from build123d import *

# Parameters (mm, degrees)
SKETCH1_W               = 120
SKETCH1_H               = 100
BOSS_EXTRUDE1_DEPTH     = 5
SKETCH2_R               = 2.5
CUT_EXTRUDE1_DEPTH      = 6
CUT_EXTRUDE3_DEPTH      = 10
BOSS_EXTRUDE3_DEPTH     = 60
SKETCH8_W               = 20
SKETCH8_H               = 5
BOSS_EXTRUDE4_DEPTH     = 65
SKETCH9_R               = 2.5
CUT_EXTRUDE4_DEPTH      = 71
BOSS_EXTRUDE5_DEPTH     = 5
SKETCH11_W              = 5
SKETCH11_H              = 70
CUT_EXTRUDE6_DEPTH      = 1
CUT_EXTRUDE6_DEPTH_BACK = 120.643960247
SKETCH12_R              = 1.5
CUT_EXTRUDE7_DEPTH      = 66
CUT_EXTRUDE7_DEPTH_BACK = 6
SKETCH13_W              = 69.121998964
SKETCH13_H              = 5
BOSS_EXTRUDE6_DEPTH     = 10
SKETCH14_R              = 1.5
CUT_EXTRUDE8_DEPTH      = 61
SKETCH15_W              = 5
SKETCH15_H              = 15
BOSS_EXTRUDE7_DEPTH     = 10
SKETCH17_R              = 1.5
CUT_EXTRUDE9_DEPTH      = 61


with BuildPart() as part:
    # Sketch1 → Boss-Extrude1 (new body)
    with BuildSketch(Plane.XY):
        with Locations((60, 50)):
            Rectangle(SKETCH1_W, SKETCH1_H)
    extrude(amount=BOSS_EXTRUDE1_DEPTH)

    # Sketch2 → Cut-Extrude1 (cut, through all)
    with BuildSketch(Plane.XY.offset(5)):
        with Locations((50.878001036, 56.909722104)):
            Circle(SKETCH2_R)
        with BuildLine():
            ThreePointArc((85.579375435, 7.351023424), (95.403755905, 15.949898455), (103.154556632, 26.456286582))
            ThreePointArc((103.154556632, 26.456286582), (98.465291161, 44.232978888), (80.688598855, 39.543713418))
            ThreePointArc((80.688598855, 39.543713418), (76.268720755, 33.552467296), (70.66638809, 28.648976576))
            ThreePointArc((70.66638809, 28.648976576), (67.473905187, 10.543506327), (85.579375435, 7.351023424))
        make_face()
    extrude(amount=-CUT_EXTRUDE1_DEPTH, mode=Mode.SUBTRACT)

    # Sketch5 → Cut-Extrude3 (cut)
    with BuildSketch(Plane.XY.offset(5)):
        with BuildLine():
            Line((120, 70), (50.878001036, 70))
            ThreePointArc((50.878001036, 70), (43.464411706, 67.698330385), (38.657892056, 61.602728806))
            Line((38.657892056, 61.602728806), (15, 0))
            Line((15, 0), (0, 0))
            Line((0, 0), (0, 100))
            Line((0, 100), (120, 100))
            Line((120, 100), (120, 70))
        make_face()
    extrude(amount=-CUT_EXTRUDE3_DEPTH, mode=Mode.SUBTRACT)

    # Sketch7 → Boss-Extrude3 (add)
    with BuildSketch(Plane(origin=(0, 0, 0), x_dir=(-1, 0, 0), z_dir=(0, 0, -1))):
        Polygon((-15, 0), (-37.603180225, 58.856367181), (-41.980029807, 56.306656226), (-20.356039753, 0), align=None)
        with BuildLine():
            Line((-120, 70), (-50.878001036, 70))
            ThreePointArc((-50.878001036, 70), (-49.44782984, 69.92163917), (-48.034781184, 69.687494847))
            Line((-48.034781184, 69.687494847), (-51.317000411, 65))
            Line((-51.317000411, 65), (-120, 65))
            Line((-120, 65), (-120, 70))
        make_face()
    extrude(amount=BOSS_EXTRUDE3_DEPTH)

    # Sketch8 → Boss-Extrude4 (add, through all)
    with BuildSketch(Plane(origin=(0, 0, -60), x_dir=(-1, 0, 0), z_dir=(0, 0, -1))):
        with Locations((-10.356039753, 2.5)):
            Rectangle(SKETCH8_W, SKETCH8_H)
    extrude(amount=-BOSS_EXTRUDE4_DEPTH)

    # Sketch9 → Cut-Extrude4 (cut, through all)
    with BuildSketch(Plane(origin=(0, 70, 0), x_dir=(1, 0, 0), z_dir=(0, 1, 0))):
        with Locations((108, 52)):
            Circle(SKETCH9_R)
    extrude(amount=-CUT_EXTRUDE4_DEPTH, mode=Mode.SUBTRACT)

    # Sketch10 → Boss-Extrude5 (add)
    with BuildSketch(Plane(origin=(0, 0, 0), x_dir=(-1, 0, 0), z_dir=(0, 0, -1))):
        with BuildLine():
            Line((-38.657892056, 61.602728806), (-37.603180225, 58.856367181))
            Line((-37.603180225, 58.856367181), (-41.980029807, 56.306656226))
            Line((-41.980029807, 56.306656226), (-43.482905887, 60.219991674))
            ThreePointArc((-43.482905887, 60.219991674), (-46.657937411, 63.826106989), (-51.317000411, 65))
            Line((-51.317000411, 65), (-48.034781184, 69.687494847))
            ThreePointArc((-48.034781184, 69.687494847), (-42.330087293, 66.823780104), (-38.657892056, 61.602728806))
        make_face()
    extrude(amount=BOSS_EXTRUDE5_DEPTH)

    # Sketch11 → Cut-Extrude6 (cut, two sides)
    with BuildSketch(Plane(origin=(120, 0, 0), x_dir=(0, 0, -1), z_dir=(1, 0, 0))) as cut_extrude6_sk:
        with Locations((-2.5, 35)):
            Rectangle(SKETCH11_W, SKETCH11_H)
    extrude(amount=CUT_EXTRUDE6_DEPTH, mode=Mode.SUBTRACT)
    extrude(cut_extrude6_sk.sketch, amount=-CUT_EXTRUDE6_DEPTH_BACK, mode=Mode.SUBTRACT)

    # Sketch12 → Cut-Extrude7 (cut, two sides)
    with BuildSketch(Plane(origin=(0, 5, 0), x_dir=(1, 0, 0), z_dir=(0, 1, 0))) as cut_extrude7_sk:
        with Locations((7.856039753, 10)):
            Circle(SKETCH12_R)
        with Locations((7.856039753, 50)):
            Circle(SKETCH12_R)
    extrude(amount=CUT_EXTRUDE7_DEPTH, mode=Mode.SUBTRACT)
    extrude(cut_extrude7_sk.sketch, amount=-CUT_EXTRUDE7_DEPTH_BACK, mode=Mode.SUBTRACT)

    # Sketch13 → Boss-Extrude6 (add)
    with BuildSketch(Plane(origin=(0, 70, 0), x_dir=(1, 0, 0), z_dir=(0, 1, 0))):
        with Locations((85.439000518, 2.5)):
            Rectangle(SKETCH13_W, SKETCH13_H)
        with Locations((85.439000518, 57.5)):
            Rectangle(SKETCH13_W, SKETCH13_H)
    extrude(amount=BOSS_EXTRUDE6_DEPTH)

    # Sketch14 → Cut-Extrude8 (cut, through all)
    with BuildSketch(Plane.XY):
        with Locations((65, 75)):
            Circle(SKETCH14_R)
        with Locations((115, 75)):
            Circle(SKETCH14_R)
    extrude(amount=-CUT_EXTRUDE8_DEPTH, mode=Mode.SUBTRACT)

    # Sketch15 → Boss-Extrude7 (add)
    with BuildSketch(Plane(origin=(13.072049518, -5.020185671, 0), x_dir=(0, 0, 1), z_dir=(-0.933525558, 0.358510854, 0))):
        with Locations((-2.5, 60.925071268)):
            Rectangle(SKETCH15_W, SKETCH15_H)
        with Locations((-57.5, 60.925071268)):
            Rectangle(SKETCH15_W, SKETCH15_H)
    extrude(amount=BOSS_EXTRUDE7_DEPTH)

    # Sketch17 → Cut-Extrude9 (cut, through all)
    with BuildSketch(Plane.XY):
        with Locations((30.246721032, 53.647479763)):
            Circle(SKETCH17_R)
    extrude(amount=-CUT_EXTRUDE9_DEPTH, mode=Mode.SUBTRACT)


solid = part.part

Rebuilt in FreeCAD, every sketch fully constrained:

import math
import FreeCAD as App
import Part
import Sketcher
Q = App.Units.Quantity


def add_polygon(sketch, points):
    """Adds a closed chain of lines whose ends are joined by coincident constraints."""
    first, n = sketch.GeometryCount, len(points)
    for a, b in zip(points, points[1:] + points[:1]):
        sketch.addGeometry(Part.LineSegment(App.Vector(*a, 0), App.Vector(*b, 0)), False)
    for i in range(n):
        sketch.addConstraint(Sketcher.Constraint("Coincident", first + i, 2, first + (i + 1) % n, 1))

doc = App.newDocument("Part")
body = doc.addObject("PartDesign::Body", "Body")

sketch1 = body.newObject("Sketcher::SketchObject", "Sketch")
sketch1.AttachmentSupport = (doc.getObject("XY_Plane"), [""])
sketch1.MapMode = "FlatFace"
add_polygon(sketch1, [(0, 100), (0, 0), (120, 0), (120, 100)])
sketch1.addConstraint(Sketcher.Constraint("Vertical", 0))
sketch1.addConstraint(Sketcher.Constraint("Horizontal", 1))
sketch1.addConstraint(Sketcher.Constraint("Vertical", 2))
sketch1.addConstraint(Sketcher.Constraint("Horizontal", 3))
sketch1.addConstraint(Sketcher.Constraint("Coincident", 0, 2, -1, 1))
sketch1.addConstraint(Sketcher.Constraint("DistanceX", 1, 1, 1, 2, Q("120 mm")))
sketch1.addConstraint(Sketcher.Constraint("DistanceY", 0, 2, 0, 1, Q("100 mm")))
pad1 = body.newObject("PartDesign::Pad", "Pad")
pad1.Profile = sketch1
pad1.Length = 5

sketch2 = body.newObject("Sketcher::SketchObject", "Sketch001")
sketch2.AttachmentSupport = (doc.getObject("XY_Plane"), [""])
sketch2.MapMode = "FlatFace"
sketch2.AttachmentOffset = App.Placement(App.Vector(0, 0, 5), App.Rotation())
sketch2.addGeometry(Part.Circle(App.Vector(50.9, 56.9, 0), App.Vector(0, 0, 1), 2.5), False)
sketch2.addGeometry(Part.ArcOfCircle(Part.Circle(App.Vector(50.9, 56.9, 0), App.Vector(0, 0, 1), 60.5), math.radians(-55), math.radians(-30)), False)
sketch2.addGeometry(Part.ArcOfCircle(Part.Circle(App.Vector(91.9, 33, 0), App.Vector(0, 0, 1), 13), math.radians(-30), math.radians(150)), False)
sketch2.addGeometry(Part.ArcOfCircle(Part.Circle(App.Vector(50.9, 56.9, 0), App.Vector(0, 0, 1), 34.5), math.radians(-55), math.radians(-30)), False)
sketch2.addGeometry(Part.ArcOfCircle(Part.Circle(App.Vector(78.1, 18, 0), App.Vector(0, 0, 1), 13), math.radians(125), math.radians(305)), False)
sketch2.addConstraint(Sketcher.Constraint("Tangent", 1, 2, 2, 1))
sketch2.addConstraint(Sketcher.Constraint("Tangent", 2, 2, 3, 2))
sketch2.addConstraint(Sketcher.Constraint("Tangent", 3, 1, 4, 1))
sketch2.addConstraint(Sketcher.Constraint("Tangent", 4, 2, 1, 1))
sketch2.addConstraint(Sketcher.Constraint("Coincident", 1, 3, 0, 3))
sketch2.addConstraint(Sketcher.Constraint("Coincident", 3, 3, 0, 3))
sketch2.addConstraint(Sketcher.Constraint("Diameter", 0, Q("5 mm")))
sketch2.addConstraint(Sketcher.Constraint("Radius", 2, Q("13 mm")))
sketch2.addConstraint(Sketcher.Constraint("Radius", 1, Q("60.5 mm")))
sketch2.addConstraint(Sketcher.Constraint("DistanceY", -1, 1, 2, 3, Q("33 mm")))
sketch2.addConstraint(Sketcher.Constraint("DistanceY", -1, 1, 4, 3, Q("18 mm")))
sketch2.addConstraint(Sketcher.Constraint("DistanceX", -1, 1, 0, 3, Q("50.878001 mm")))
sketch2.addConstraint(Sketcher.Constraint("DistanceX", -1, 1, 2, 2, Q("80.688599 mm")))
pocket1 = body.newObject("PartDesign::Pocket", "Pocket")
pocket1.Profile = sketch2
pocket1.Type = "ThroughAll"

sketch3 = body.newObject("Sketcher::SketchObject", "Sketch002")
sketch3.AttachmentSupport = (doc.getObject("XY_Plane"), [""])
sketch3.MapMode = "FlatFace"
sketch3.AttachmentOffset = App.Placement(App.Vector(0, 0, 5), App.Rotation())
sketch3.addGeometry(Part.LineSegment(App.Vector(51, 70, 0), App.Vector(120, 70, 0)), False)
sketch3.addGeometry(Part.LineSegment(App.Vector(120, 70, 0), App.Vector(120, 100, 0)), False)
sketch3.addGeometry(Part.LineSegment(App.Vector(120, 100, 0), App.Vector(0, 100, 0)), False)
sketch3.addGeometry(Part.LineSegment(App.Vector(0, 100, 0), App.Vector(0, 0, 0)), False)
sketch3.addGeometry(Part.LineSegment(App.Vector(0, 0, 0), App.Vector(15, 0, 0)), False)
sketch3.addGeometry(Part.LineSegment(App.Vector(15, 0, 0), App.Vector(39, 62, 0)), False)
sketch3.addGeometry(Part.ArcOfCircle(Part.Circle(App.Vector(51, 57, 0), App.Vector(0, 0, 1), 13), math.radians(90), math.radians(159)), False)
sketch3.addConstraint(Sketcher.Constraint("Coincident", 0, 2, 1, 1))
sketch3.addConstraint(Sketcher.Constraint("Coincident", 1, 2, 2, 1))
sketch3.addConstraint(Sketcher.Constraint("Coincident", 2, 2, 3, 1))
sketch3.addConstraint(Sketcher.Constraint("Coincident", 3, 2, 4, 1))
sketch3.addConstraint(Sketcher.Constraint("Coincident", 4, 2, 5, 1))
sketch3.addConstraint(Sketcher.Constraint("Tangent", 5, 2, 6, 2))
sketch3.addConstraint(Sketcher.Constraint("Tangent", 6, 1, 0, 1))
sketch3.addConstraint(Sketcher.Constraint("Horizontal", 0))
sketch3.addConstraint(Sketcher.Constraint("Vertical", 1))
sketch3.addConstraint(Sketcher.Constraint("Horizontal", 2))
sketch3.addConstraint(Sketcher.Constraint("Vertical", 3))
sketch3.addConstraint(Sketcher.Constraint("Horizontal", 4))
sketch3.addConstraint(Sketcher.Constraint("Coincident", 3, 2, -1, 1))
sketch3.addConstraint(Sketcher.Constraint("DistanceX", 2, 2, 2, 1, Q("120 mm")))
sketch3.addConstraint(Sketcher.Constraint("DistanceX", 4, 1, 4, 2, Q("15 mm")))
sketch3.addConstraint(Sketcher.Constraint("DistanceY", 1, 1, 1, 2, Q("30 mm")))
sketch3.addConstraint(Sketcher.Constraint("DistanceY", 3, 2, 3, 1, Q("100 mm")))
sketch3.addConstraint(Sketcher.Constraint("DistanceX", 0, 1, 0, 2, Q("69.121999 mm")))
sketch3.addConstraint(Sketcher.Constraint("Radius", 6, Q("13.090278 mm")))
pocket2 = body.newObject("PartDesign::Pocket", "Pocket001")
pocket2.Profile = sketch3
pocket2.Length = 10

sketch4 = body.newObject("Sketcher::SketchObject", "Sketch003")
sketch4.AttachmentSupport = (doc.getObject("XY_Plane"), [""])
sketch4.MapMode = "FlatFace"
add_polygon(sketch4, [(15, 0), (37.6, 58.9), (42, 56.3), (20.4, 0)])
sketch4.addGeometry(Part.LineSegment(App.Vector(50.9, 70, 0), App.Vector(120, 70, 0)), False)
sketch4.addGeometry(Part.LineSegment(App.Vector(120, 70, 0), App.Vector(120, 65, 0)), False)
sketch4.addGeometry(Part.LineSegment(App.Vector(120, 65, 0), App.Vector(51.3, 65, 0)), False)
sketch4.addGeometry(Part.LineSegment(App.Vector(51.3, 65, 0), App.Vector(48, 69.7, 0)), False)
sketch4.addGeometry(Part.ArcOfCircle(Part.Circle(App.Vector(50.9, 56.9, 0), App.Vector(0, 0, 1), 13.1), math.radians(90), math.radians(102.54)), False)
sketch4.addConstraint(Sketcher.Constraint("Coincident", 4, 2, 5, 1))
sketch4.addConstraint(Sketcher.Constraint("Coincident", 5, 2, 6, 1))
sketch4.addConstraint(Sketcher.Constraint("Coincident", 6, 2, 7, 1))
sketch4.addConstraint(Sketcher.Constraint("Coincident", 7, 2, 8, 2))
sketch4.addConstraint(Sketcher.Constraint("Tangent", 8, 1, 4, 1))
sketch4.addConstraint(Sketcher.Constraint("Horizontal", 3))
sketch4.addConstraint(Sketcher.Constraint("Horizontal", 4))
sketch4.addConstraint(Sketcher.Constraint("Vertical", 5))
sketch4.addConstraint(Sketcher.Constraint("Horizontal", 6))
sketch4.addConstraint(Sketcher.Constraint("PointOnObject", 2, 2, -1))
sketch4.addConstraint(Sketcher.Constraint("Parallel", 0, 2))
sketch4.addConstraint(Sketcher.Constraint("DistanceY", 5, 2, 5, 1, Q("5 mm")))
sketch4.addConstraint(Sketcher.Constraint("Angle", 7, Q("125 deg")))
sketch4.addConstraint(Sketcher.Constraint("DistanceX", -1, 1, 3, 2, Q("15 mm")))
sketch4.addConstraint(Sketcher.Constraint("DistanceX", -1, 1, 4, 2, Q("120 mm")))
sketch4.addConstraint(Sketcher.Constraint("DistanceY", -1, 1, 4, 2, Q("70 mm")))
sketch4.addConstraint(Sketcher.Constraint("DistanceX", 4, 1, 4, 2, Q("69.121999 mm")))
sketch4.addConstraint(Sketcher.Constraint("DistanceX", 6, 2, 6, 1, Q("68.683 mm")))
sketch4.addConstraint(Sketcher.Constraint("Radius", 8, Q("13.090278 mm")))
sketch4.addConstraint(Sketcher.Constraint("DistanceX", 3, 2, 3, 1, Q("5.35604 mm")))
sketch4.addConstraint(Sketcher.Constraint("DistanceX", 0, 2, 7, 2, Q("10.431601 mm")))
sketch4.addConstraint(Sketcher.Constraint("Distance", 0, Q("63.047408 mm")))
sketch4.addConstraint(Sketcher.Constraint("DistanceX", -1, 1, 1, 2, Q("41.98003 mm")))
pad2 = body.newObject("PartDesign::Pad", "Pad001")
pad2.Profile = sketch4
pad2.Length = 60
pad2.Reversed = True

sketch5 = body.newObject("Sketcher::SketchObject", "Sketch004")
sketch5.AttachmentSupport = (doc.getObject("XY_Plane"), [""])
sketch5.MapMode = "FlatFace"
sketch5.AttachmentOffset = App.Placement(App.Vector(0, 0, -60), App.Rotation())
add_polygon(sketch5, [(20, 5), (20, 0), (0, 0), (0, 5)])
sketch5.addConstraint(Sketcher.Constraint("Vertical", 0))
sketch5.addConstraint(Sketcher.Constraint("Horizontal", 1))
sketch5.addConstraint(Sketcher.Constraint("Vertical", 2))
sketch5.addConstraint(Sketcher.Constraint("Horizontal", 3))
sketch5.addConstraint(Sketcher.Constraint("PointOnObject", 0, 2, -1))
sketch5.addConstraint(Sketcher.Constraint("DistanceX", 1, 2, 1, 1, Q("20 mm")))
sketch5.addConstraint(Sketcher.Constraint("DistanceY", 0, 2, 0, 1, Q("5 mm")))
sketch5.addConstraint(Sketcher.Constraint("DistanceX", -1, 1, 0, 2, Q("20.35604 mm")))
pad3 = body.newObject("PartDesign::Pad", "Pad002")
pad3.Profile = sketch5
pad3.Length = 65

sketch6 = body.newObject("Sketcher::SketchObject", "Sketch005")
sketch6.AttachmentSupport = (doc.getObject("XZ_Plane"), [""])
sketch6.MapMode = "FlatFace"
sketch6.AttachmentOffset = App.Placement(App.Vector(0, 0, -70), App.Rotation())
sketch6.addGeometry(Part.Circle(App.Vector(108, -52, 0), App.Vector(0, 0, 1), 2.5), False)
sketch6.addConstraint(Sketcher.Constraint("Diameter", 0, Q("5 mm")))
sketch6.addConstraint(Sketcher.Constraint("DistanceX", -1, 1, 0, 3, Q("108 mm")))
sketch6.addConstraint(Sketcher.Constraint("DistanceY", 0, 3, -1, 1, Q("52 mm")))
pocket3 = body.newObject("PartDesign::Pocket", "Pocket002")
pocket3.Profile = sketch6
pocket3.Type = "ThroughAll"
pocket3.Reversed = True

sketch7 = body.newObject("Sketcher::SketchObject", "Sketch006")
sketch7.AttachmentSupport = (doc.getObject("XY_Plane"), [""])
sketch7.MapMode = "FlatFace"
sketch7.addGeometry(Part.LineSegment(App.Vector(37.6, 58.9, 0), App.Vector(38.7, 61.6, 0)), False)
sketch7.addGeometry(Part.ArcOfCircle(Part.Circle(App.Vector(50.9, 56.9, 0), App.Vector(0, 0, 1), 13.1), math.radians(103), math.radians(159)), False)
sketch7.addGeometry(Part.LineSegment(App.Vector(48, 69.7, 0), App.Vector(51.3, 65, 0)), False)
sketch7.addGeometry(Part.ArcOfCircle(Part.Circle(App.Vector(50.9, 56.9, 0), App.Vector(0, 0, 1), 8.1), math.radians(87), math.radians(156)), False)
sketch7.addGeometry(Part.LineSegment(App.Vector(43.5, 60.2, 0), App.Vector(42, 56.3, 0)), False)
sketch7.addGeometry(Part.LineSegment(App.Vector(42, 56.3, 0), App.Vector(37.6, 58.9, 0)), False)
sketch7.addConstraint(Sketcher.Constraint("Tangent", 0, 2, 1, 2))
sketch7.addConstraint(Sketcher.Constraint("Coincident", 1, 1, 2, 1))
sketch7.addConstraint(Sketcher.Constraint("Coincident", 2, 2, 3, 1))
sketch7.addConstraint(Sketcher.Constraint("Coincident", 3, 2, 4, 1))
sketch7.addConstraint(Sketcher.Constraint("Coincident", 4, 2, 5, 1))
sketch7.addConstraint(Sketcher.Constraint("Coincident", 5, 2, 0, 1))
sketch7.addConstraint(Sketcher.Constraint("Coincident", 3, 3, 1, 3))
sketch7.addConstraint(Sketcher.Constraint("Parallel", 0, 4))
sketch7.addConstraint(Sketcher.Constraint("Angle", 2, Q("-55 deg")))
sketch7.addConstraint(Sketcher.Constraint("DistanceY", -1, 1, 2, 2, Q("65 mm")))
sketch7.addConstraint(Sketcher.Constraint("Radius", 3, Q("8.10218 mm")))
sketch7.addConstraint(Sketcher.Constraint("DistanceX", -1, 1, 1, 3, Q("50.878001 mm")))
sketch7.addConstraint(Sketcher.Constraint("DistanceX", -1, 1, 2, 2, Q("51.317 mm")))
sketch7.addConstraint(Sketcher.Constraint("Radius", 1, Q("13.090278 mm")))
sketch7.addConstraint(Sketcher.Constraint("DistanceY", -1, 1, 0, 2, Q("61.602729 mm")))
sketch7.addConstraint(Sketcher.Constraint("DistanceY", -1, 1, 3, 2, Q("60.219992 mm")))
sketch7.addConstraint(Sketcher.Constraint("DistanceX", -1, 1, 4, 2, Q("41.98003 mm")))
sketch7.addConstraint(Sketcher.Constraint("DistanceX", -1, 1, 5, 2, Q("37.60318 mm")))
pad4 = body.newObject("PartDesign::Pad", "Pad003")
pad4.Profile = sketch7
pad4.Length = 5
pad4.Reversed = True

sketch8 = body.newObject("Sketcher::SketchObject", "Sketch007")
sketch8.AttachmentSupport = (doc.getObject("YZ_Plane"), [""])
sketch8.MapMode = "FlatFace"
sketch8.AttachmentOffset = App.Placement(App.Vector(0, 0, 120), App.Rotation())
add_polygon(sketch8, [(70, 5), (0, 5), (0, 0), (70, 0)])
sketch8.addConstraint(Sketcher.Constraint("Horizontal", 0))
sketch8.addConstraint(Sketcher.Constraint("Vertical", 1))
sketch8.addConstraint(Sketcher.Constraint("Horizontal", 2))
sketch8.addConstraint(Sketcher.Constraint("Vertical", 3))
sketch8.addConstraint(Sketcher.Constraint("Coincident", 1, 2, -1, 1))
sketch8.addConstraint(Sketcher.Constraint("DistanceX", 0, 2, 0, 1, Q("70 mm")))
sketch8.addConstraint(Sketcher.Constraint("DistanceY", 1, 2, 1, 1, Q("5 mm")))
pocket4 = body.newObject("PartDesign::Pocket", "Pocket003")
pocket4.Profile = sketch8
pocket4.Type = "ThroughAll"
pocket4.Midplane = True

sketch9 = body.newObject("Sketcher::SketchObject", "Sketch008")
sketch9.AttachmentSupport = (doc.getObject("XZ_Plane"), [""])
sketch9.MapMode = "FlatFace"
sketch9.AttachmentOffset = App.Placement(App.Vector(0, 0, -5), App.Rotation())
sketch9.addGeometry(Part.Circle(App.Vector(7.9, -10, 0), App.Vector(0, 0, 1), 1.5), False)
sketch9.addGeometry(Part.Circle(App.Vector(7.9, -50, 0), App.Vector(0, 0, 1), 1.5), False)
sketch9.addConstraint(Sketcher.Constraint("Equal", 0, 1))
sketch9.addConstraint(Sketcher.Constraint("Vertical", 0, 3, 1, 3))
sketch9.addConstraint(Sketcher.Constraint("Diameter", 0, Q("3 mm")))
sketch9.addConstraint(Sketcher.Constraint("DistanceY", 0, 3, -1, 1, Q("10 mm")))
sketch9.addConstraint(Sketcher.Constraint("DistanceY", 1, 3, -1, 1, Q("50 mm")))
sketch9.addConstraint(Sketcher.Constraint("DistanceX", -1, 1, 0, 3, Q("7.85604 mm")))
pocket5 = body.newObject("PartDesign::Pocket", "Pocket004")
pocket5.Profile = sketch9
pocket5.Type = "ThroughAll"
pocket5.Midplane = True

sketch10 = body.newObject("Sketcher::SketchObject", "Sketch009")
sketch10.AttachmentSupport = (doc.getObject("XZ_Plane"), [""])
sketch10.MapMode = "FlatFace"
sketch10.AttachmentOffset = App.Placement(App.Vector(0, 0, -70), App.Rotation())
add_polygon(sketch10, [(51, -5), (51, 0), (120, 0), (120, -5)])
add_polygon(sketch10, [(51, -60), (51, -55), (120, -55), (120, -60)])
sketch10.addConstraint(Sketcher.Constraint("Vertical", 0))
sketch10.addConstraint(Sketcher.Constraint("Horizontal", 1))
sketch10.addConstraint(Sketcher.Constraint("Vertical", 2))
sketch10.addConstraint(Sketcher.Constraint("Horizontal", 3))
sketch10.addConstraint(Sketcher.Constraint("Vertical", 4))
sketch10.addConstraint(Sketcher.Constraint("Horizontal", 5))
sketch10.addConstraint(Sketcher.Constraint("Vertical", 6))
sketch10.addConstraint(Sketcher.Constraint("Horizontal", 7))
sketch10.addConstraint(Sketcher.Constraint("PointOnObject", 0, 2, -1))
sketch10.addConstraint(Sketcher.Constraint("Vertical", 3, 2, 4, 2))
sketch10.addConstraint(Sketcher.Constraint("Vertical", 2, 2, 5, 2))
sketch10.addConstraint(Sketcher.Constraint("Equal", 2, 4))
sketch10.addConstraint(Sketcher.Constraint("DistanceY", 0, 1, 0, 2, Q("5 mm")))
sketch10.addConstraint(Sketcher.Constraint("DistanceX", -1, 1, 1, 2, Q("120 mm")))
sketch10.addConstraint(Sketcher.Constraint("DistanceY", 4, 2, -1, 1, Q("55 mm")))
sketch10.addConstraint(Sketcher.Constraint("DistanceX", 1, 1, 1, 2, Q("69.121999 mm")))
pad5 = body.newObject("PartDesign::Pad", "Pad004")
pad5.Profile = sketch10
pad5.Length = 10
pad5.Reversed = True

sketch11 = body.newObject("Sketcher::SketchObject", "Sketch010")
sketch11.AttachmentSupport = (doc.getObject("XY_Plane"), [""])
sketch11.MapMode = "FlatFace"
sketch11.addGeometry(Part.Circle(App.Vector(65, 75, 0), App.Vector(0, 0, 1), 1.5), False)
sketch11.addGeometry(Part.Circle(App.Vector(115, 75, 0), App.Vector(0, 0, 1), 1.5), False)
sketch11.addConstraint(Sketcher.Constraint("Equal", 0, 1))
sketch11.addConstraint(Sketcher.Constraint("Horizontal", 0, 3, 1, 3))
sketch11.addConstraint(Sketcher.Constraint("Diameter", 0, Q("3 mm")))
sketch11.addConstraint(Sketcher.Constraint("DistanceX", -1, 1, 0, 3, Q("65 mm")))
sketch11.addConstraint(Sketcher.Constraint("DistanceY", -1, 1, 0, 3, Q("75 mm")))
sketch11.addConstraint(Sketcher.Constraint("DistanceX", -1, 1, 1, 3, Q("115 mm")))
pocket6 = body.newObject("PartDesign::Pocket", "Pocket005")
pocket6.Profile = sketch11
pocket6.Type = "ThroughAll"

sketch12 = body.newObject("Sketcher::SketchObject", "Sketch011")
sketch12.Placement = App.Placement(App.Vector(13.07205, -5.020186, 0), App.Rotation(App.Vector(0, 0, 1), App.Vector(0.358510854, 0.933525558, 0), App.Vector(-0.933525558, 0.358510854, 0), "ZXY"))
add_polygon(sketch12, [(-5, 68), (-5, 53), (0, 53), (0, 68)])
add_polygon(sketch12, [(-60, 68), (-60, 53), (-55, 53), (-55, 68)])
sketch12.addConstraint(Sketcher.Constraint("Vertical", 0))
sketch12.addConstraint(Sketcher.Constraint("Horizontal", 1))
sketch12.addConstraint(Sketcher.Constraint("Vertical", 2))
sketch12.addConstraint(Sketcher.Constraint("Horizontal", 3))
sketch12.addConstraint(Sketcher.Constraint("Vertical", 4))
sketch12.addConstraint(Sketcher.Constraint("Horizontal", 5))
sketch12.addConstraint(Sketcher.Constraint("Vertical", 6))
sketch12.addConstraint(Sketcher.Constraint("Horizontal", 7))
sketch12.addConstraint(Sketcher.Constraint("PointOnObject", 1, 2, -2))
sketch12.addConstraint(Sketcher.Constraint("Horizontal", 1, 2, 4, 2))
sketch12.addConstraint(Sketcher.Constraint("Horizontal", 3, 2, 6, 2))
sketch12.addConstraint(Sketcher.Constraint("Equal", 3, 5))
sketch12.addConstraint(Sketcher.Constraint("DistanceX", 1, 1, 1, 2, Q("5 mm")))
sketch12.addConstraint(Sketcher.Constraint("DistanceY", 0, 2, 0, 1, Q("15 mm")))
sketch12.addConstraint(Sketcher.Constraint("DistanceX", 4, 2, -1, 1, Q("60 mm")))
sketch12.addConstraint(Sketcher.Constraint("DistanceY", -1, 1, 0, 2, Q("53.425071 mm")))
pad6 = body.newObject("PartDesign::Pad", "Pad005")
pad6.Profile = sketch12
pad6.Length = 10

sketch13 = body.newObject("Sketcher::SketchObject", "Sketch012")
sketch13.AttachmentSupport = (doc.getObject("XY_Plane"), [""])
sketch13.MapMode = "FlatFace"
sketch13.addGeometry(Part.Circle(App.Vector(30.2, 53.6, 0), App.Vector(0, 0, 1), 1.5), False)
sketch13.addConstraint(Sketcher.Constraint("Diameter", 0, Q("3 mm")))
sketch13.addConstraint(Sketcher.Constraint("DistanceX", -1, 1, 0, 3, Q("30.246721 mm")))
sketch13.addConstraint(Sketcher.Constraint("DistanceY", -1, 1, 0, 3, Q("53.64748 mm")))
pocket7 = body.newObject("PartDesign::Pocket", "Pocket006")
pocket7.Profile = sketch13
pocket7.Type = "ThroughAll"

doc.recompute()
